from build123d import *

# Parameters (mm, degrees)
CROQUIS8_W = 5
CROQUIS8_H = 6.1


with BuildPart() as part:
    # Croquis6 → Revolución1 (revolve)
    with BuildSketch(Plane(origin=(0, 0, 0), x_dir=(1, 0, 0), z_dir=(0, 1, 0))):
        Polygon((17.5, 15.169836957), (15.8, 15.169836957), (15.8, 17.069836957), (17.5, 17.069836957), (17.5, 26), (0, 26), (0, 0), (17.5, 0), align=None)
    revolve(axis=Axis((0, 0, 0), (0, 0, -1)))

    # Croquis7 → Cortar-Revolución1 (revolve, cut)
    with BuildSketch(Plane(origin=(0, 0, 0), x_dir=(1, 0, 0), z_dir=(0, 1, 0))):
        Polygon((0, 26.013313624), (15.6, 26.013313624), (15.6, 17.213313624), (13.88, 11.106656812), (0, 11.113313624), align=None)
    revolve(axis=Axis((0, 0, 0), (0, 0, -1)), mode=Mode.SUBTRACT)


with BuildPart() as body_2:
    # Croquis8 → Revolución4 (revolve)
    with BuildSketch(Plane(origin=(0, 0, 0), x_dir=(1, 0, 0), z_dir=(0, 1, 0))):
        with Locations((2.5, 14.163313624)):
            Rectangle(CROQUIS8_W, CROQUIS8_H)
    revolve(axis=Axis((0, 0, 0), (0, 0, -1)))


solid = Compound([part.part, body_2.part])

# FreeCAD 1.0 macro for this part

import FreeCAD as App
import Part
import Sketcher

doc = App.newDocument("Part")
body = doc.addObject("PartDesign::Body", "Body")

# Sketch on XZ plane
sketch1 = body.newObject("Sketcher::SketchObject", "Sketch")
sketch1.AttachmentSupport = (doc.getObject("XZ_Plane"), [""])
sketch1.MapMode = "FlatFace"
sketch1.addGeometry([
    Part.LineSegment(App.Vector(17.5, -15.2, 0), App.Vector(15.8, -15.2, 0)),  # 0
    Part.LineSegment(App.Vector(15.8, -15.2, 0), App.Vector(15.8, -17.1, 0)),  # 1
    Part.LineSegment(App.Vector(15.8, -17.1, 0), App.Vector(17.5, -17.1, 0)),  # 2
    Part.LineSegment(App.Vector(17.5, -17.1, 0), App.Vector(17.5, -26, 0)),  # 3
    Part.LineSegment(App.Vector(17.5, -26, 0), App.Vector(0, -26, 0)),  # 4
    Part.LineSegment(App.Vector(0, -26, 0), App.Vector(0, 0, 0)),  # 5
    Part.LineSegment(App.Vector(0, 0, 0), App.Vector(17.5, 0, 0)),  # 6
    Part.LineSegment(App.Vector(17.5, 0, 0), App.Vector(17.5, -15.2, 0)),  # 7
], False)
sketch1.addConstraint([
    Sketcher.Constraint("Coincident", 0, 2, 1, 1),
    Sketcher.Constraint("Coincident", 1, 2, 2, 1),
    Sketcher.Constraint("Coincident", 2, 2, 3, 1),
    Sketcher.Constraint("Coincident", 3, 2, 4, 1),
    Sketcher.Constraint("Coincident", 4, 2, 5, 1),
    Sketcher.Constraint("Coincident", 5, 2, 6, 1),
    Sketcher.Constraint("Coincident", 6, 2, 7, 1),
    Sketcher.Constraint("Coincident", 7, 2, 0, 1),
    Sketcher.Constraint("Horizontal", 0),
    Sketcher.Constraint("Vertical", 1),
    Sketcher.Constraint("Horizontal", 2),
    Sketcher.Constraint("Vertical", 3),
    Sketcher.Constraint("Horizontal", 4),
    Sketcher.Constraint("Vertical", 5),
    Sketcher.Constraint("Horizontal", 6),
    Sketcher.Constraint("Vertical", 7),
    Sketcher.Constraint("Coincident", 5, 2, -1, 1),
    Sketcher.Constraint("Vertical", 3, 2, 6, 2),
    Sketcher.Constraint("DistanceY", 5, 1, 5, 2, 26.0),
    Sketcher.Constraint("DistanceX", 0, 2, 0, 1, 1.7),
    Sketcher.Constraint("DistanceX", 4, 2, 4, 1, 17.5),
    Sketcher.Constraint("DistanceY", 1, 2, 1, 1, 1.9),
    Sketcher.Constraint("DistanceY", 3, 2, 3, 1, 8.930163),
])
revolution = body.newObject("PartDesign::Revolution", "Revolution")
revolution.Profile = sketch1
revolution.ReferenceAxis = (sketch1, ["V_Axis"])
revolution.Angle = 360

# Sketch on XZ plane
sketch2 = body.newObject("Sketcher::SketchObject", "Sketch001")
sketch2.AttachmentSupport = (doc.getObject("XZ_Plane"), [""])
sketch2.MapMode = "FlatFace"
sketch2.addGeometry([
    Part.LineSegment(App.Vector(16, -26, 0), App.Vector(0, -26, 0)),  # 0
    Part.LineSegment(App.Vector(0, -26, 0), App.Vector(0, -11, 0)),  # 1
    Part.LineSegment(App.Vector(0, -11, 0), App.Vector(14, -11, 0)),  # 2
    Part.LineSegment(App.Vector(14, -11, 0), App.Vector(16, -17, 0)),  # 3
    Part.LineSegment(App.Vector(16, -17, 0), App.Vector(16, -26, 0)),  # 4
], False)
sketch2.addConstraint([
    Sketcher.Constraint("Coincident", 0, 2, 1, 1),
    Sketcher.Constraint("Coincident", 1, 2, 2, 1),
    Sketcher.Constraint("Coincident", 2, 2, 3, 1),
    Sketcher.Constraint("Coincident", 3, 2, 4, 1),
    Sketcher.Constraint("Coincident", 4, 2, 0, 1),
    Sketcher.Constraint("Horizontal", 0),
    Sketcher.Constraint("Vertical", 1),
    Sketcher.Constraint("Vertical", 4),
    Sketcher.Constraint("PointOnObject", 0, 2, -2),
    Sketcher.Constraint("DistanceX", 0, 2, 0, 1, 15.6),
    Sketcher.Constraint("DistanceY", 1, 1, 1, 2, 14.9),
    Sketcher.Constraint("DistanceY", 4, 2, 4, 1, 8.8),
    Sketcher.Constraint("Distance", 2, 13.880002),
    Sketcher.Constraint("Distance", 3, 6.344262),
    Sketcher.Constraint("DistanceY", 0, 2, -1, 1, 26.013314),
])
groove = body.newObject("PartDesign::Groove", "Groove")
groove.Profile = sketch2
groove.ReferenceAxis = (sketch2, ["V_Axis"])
groove.Angle = 360
body2 = doc.addObject("PartDesign::Body", "Body001")

# Sketch on XZ plane
sketch3 = body2.newObject("Sketcher::SketchObject", "Sketch002")
sketch3.AttachmentSupport = (doc.getObject("XZ_Plane001"), [""])
sketch3.MapMode = "FlatFace"
sketch3.addGeometry([
    Part.LineSegment(App.Vector(0, -17, 0), App.Vector(0, -11, 0)),
    Part.LineSegment(App.Vector(0, -11, 0), App.Vector(5, -11, 0)),
    Part.LineSegment(App.Vector(5, -11, 0), App.Vector(5, -17, 0)),
    Part.LineSegment(App.Vector(5, -17, 0), App.Vector(0, -17, 0)),
], False)
sketch3.addConstraint([
    Sketcher.Constraint("Coincident", 0, 2, 1, 1),
    Sketcher.Constraint("Coincident", 1, 2, 2, 1),
    Sketcher.Constraint("Coincident", 2, 2, 3, 1),
    Sketcher.Constraint("Coincident", 3, 2, 0, 1),
    Sketcher.Constraint("Vertical", 0),
    Sketcher.Constraint("Horizontal", 1),
    Sketcher.Constraint("Vertical", 2),
    Sketcher.Constraint("Horizontal", 3),
    Sketcher.Constraint("PointOnObject", 0, 2, -2),
    Sketcher.Constraint("DistanceX", 1, 1, 1, 2, 5.0),
    Sketcher.Constraint("DistanceY", 0, 1, 0, 2, 6.1),
    Sketcher.Constraint("DistanceY", 0, 2, -1, 1, 11.113314),
])
revolution2 = body2.newObject("PartDesign::Revolution", "Revolution001")
revolution2.Profile = sketch3
revolution2.ReferenceAxis = (sketch3, ["V_Axis"])
revolution2.Angle = 360

doc.recompute()
